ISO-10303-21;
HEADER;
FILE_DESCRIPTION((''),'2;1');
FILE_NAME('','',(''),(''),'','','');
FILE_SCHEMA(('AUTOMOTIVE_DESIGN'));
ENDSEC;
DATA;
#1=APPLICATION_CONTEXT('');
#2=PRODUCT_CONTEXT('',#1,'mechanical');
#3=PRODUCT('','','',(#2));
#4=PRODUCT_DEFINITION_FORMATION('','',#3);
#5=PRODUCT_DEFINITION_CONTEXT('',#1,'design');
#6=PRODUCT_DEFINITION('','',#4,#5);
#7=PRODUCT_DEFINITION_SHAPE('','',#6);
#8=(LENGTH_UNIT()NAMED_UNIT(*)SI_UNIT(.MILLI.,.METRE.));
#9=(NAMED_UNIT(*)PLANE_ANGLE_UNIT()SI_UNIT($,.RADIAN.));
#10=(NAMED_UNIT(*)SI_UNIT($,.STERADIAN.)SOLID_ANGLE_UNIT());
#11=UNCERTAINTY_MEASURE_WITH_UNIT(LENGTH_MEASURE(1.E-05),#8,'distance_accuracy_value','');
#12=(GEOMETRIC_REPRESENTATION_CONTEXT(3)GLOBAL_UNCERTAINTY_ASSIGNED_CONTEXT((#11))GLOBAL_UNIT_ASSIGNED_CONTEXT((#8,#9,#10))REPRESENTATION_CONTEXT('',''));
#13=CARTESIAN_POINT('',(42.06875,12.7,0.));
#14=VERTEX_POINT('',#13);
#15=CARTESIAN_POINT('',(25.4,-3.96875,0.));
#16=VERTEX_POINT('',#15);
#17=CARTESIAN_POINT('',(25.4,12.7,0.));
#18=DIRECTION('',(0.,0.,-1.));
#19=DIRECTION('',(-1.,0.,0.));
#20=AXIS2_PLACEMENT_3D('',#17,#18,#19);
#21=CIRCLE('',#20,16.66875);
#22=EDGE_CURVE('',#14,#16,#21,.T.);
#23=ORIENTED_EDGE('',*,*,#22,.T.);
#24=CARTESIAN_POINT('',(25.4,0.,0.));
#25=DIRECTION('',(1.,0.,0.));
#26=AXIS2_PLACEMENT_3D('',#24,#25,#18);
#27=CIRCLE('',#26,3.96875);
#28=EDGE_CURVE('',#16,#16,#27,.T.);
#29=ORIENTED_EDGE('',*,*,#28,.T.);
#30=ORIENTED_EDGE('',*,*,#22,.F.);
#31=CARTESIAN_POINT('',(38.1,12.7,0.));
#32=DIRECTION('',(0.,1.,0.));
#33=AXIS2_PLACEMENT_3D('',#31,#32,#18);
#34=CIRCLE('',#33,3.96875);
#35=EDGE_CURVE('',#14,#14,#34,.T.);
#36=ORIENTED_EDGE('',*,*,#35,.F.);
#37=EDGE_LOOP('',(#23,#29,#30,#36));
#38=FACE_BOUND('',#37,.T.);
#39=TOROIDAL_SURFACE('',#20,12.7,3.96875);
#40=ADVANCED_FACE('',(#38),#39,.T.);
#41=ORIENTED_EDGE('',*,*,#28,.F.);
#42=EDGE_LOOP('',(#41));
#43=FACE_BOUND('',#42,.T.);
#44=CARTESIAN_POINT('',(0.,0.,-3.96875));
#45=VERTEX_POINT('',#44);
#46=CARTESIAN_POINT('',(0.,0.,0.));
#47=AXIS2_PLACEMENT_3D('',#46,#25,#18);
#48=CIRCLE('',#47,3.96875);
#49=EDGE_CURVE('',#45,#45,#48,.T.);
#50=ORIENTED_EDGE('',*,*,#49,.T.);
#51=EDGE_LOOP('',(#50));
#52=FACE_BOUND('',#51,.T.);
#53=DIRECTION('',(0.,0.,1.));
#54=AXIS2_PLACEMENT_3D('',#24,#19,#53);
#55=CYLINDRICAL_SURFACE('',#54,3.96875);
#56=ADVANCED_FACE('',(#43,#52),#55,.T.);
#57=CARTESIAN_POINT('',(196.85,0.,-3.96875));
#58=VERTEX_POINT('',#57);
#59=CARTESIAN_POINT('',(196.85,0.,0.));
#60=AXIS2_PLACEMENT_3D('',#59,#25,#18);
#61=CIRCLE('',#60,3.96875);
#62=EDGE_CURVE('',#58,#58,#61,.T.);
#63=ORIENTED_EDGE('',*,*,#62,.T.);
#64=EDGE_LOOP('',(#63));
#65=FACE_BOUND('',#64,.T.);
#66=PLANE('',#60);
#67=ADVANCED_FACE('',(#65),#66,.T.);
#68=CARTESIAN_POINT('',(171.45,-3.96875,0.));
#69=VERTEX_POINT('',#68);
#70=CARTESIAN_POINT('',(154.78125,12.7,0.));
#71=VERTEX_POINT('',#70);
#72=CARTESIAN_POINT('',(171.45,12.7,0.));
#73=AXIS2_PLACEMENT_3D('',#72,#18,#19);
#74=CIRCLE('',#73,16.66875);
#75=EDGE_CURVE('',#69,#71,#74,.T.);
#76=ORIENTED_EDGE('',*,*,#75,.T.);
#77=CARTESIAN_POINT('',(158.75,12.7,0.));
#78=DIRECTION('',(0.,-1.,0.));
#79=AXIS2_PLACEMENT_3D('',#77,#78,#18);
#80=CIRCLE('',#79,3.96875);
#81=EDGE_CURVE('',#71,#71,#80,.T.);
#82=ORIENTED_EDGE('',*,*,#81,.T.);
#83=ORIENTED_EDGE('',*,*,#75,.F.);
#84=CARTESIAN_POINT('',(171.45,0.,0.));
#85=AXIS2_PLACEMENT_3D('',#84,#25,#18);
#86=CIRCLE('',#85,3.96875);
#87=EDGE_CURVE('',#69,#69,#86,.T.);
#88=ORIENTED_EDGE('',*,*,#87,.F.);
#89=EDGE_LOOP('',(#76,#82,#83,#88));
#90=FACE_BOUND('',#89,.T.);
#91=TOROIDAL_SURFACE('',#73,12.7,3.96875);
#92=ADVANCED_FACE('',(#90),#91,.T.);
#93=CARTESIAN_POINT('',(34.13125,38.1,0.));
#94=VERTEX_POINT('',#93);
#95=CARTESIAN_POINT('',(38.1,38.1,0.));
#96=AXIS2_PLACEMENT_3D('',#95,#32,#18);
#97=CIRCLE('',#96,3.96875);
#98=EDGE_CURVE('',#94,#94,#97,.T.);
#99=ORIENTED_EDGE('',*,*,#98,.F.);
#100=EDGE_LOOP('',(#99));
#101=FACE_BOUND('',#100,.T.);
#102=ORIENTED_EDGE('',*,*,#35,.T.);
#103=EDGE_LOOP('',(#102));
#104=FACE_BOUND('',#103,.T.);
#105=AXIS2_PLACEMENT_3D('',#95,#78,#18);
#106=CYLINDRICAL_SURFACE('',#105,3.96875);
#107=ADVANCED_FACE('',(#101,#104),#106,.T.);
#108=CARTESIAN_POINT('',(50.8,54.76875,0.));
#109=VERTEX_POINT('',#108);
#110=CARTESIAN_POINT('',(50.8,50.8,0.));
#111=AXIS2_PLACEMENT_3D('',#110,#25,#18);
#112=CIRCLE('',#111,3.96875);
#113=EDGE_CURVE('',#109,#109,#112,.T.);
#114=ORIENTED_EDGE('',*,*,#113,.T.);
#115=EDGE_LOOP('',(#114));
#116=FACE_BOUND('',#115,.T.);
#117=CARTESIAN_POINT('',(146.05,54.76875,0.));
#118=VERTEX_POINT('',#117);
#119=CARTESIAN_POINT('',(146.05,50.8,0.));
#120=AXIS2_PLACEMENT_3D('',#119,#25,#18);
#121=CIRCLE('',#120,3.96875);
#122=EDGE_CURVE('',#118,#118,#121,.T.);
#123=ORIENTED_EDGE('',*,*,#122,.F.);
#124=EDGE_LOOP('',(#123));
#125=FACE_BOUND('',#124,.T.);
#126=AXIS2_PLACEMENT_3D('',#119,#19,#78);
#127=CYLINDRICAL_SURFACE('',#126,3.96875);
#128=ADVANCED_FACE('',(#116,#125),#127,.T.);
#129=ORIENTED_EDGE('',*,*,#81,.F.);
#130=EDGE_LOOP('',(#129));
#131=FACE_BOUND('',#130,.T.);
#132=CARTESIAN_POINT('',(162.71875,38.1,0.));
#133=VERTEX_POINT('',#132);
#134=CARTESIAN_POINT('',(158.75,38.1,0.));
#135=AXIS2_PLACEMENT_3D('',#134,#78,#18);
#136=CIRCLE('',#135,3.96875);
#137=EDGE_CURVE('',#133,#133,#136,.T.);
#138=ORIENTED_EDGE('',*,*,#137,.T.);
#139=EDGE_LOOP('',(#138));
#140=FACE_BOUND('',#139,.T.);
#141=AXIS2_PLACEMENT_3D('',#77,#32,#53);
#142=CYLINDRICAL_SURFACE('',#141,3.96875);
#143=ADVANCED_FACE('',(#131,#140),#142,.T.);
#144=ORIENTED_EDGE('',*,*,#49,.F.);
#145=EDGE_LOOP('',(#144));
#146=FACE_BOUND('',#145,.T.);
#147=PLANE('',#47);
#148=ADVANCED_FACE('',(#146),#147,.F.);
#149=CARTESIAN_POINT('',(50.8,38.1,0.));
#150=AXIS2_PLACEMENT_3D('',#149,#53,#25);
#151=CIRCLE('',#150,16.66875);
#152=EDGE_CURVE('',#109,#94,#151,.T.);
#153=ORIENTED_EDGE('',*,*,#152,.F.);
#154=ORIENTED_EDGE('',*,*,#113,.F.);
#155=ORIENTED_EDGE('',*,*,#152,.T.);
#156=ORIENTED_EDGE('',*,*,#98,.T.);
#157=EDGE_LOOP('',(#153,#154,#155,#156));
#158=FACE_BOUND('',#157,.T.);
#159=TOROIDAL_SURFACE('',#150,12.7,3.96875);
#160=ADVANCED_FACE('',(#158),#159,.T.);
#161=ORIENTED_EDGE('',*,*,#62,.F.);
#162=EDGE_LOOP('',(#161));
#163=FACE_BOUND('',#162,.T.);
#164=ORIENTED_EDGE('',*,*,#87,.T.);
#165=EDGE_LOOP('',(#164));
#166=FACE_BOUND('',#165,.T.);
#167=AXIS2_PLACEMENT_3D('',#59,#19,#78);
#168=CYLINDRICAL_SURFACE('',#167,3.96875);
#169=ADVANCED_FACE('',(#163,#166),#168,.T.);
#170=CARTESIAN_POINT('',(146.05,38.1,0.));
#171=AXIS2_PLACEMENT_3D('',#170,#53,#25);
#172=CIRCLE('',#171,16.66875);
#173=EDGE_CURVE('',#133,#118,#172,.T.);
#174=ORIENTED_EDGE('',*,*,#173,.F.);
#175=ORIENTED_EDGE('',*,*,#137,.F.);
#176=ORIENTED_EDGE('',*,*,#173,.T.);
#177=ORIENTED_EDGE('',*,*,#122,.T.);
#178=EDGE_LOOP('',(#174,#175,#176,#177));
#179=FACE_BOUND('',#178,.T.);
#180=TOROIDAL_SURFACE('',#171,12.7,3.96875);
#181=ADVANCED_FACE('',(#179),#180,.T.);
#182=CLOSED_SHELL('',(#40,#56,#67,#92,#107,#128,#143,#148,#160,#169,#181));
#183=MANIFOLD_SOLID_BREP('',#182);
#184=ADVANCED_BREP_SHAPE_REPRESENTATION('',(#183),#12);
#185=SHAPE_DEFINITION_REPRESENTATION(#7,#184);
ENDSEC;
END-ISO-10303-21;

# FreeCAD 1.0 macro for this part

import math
import FreeCAD as App
import Part
import Sketcher
Q = App.Units.Quantity

doc = App.newDocument("Part")
body = doc.addObject("PartDesign::Body", "Body")

# Sketch on YZ plane
sketch1 = body.newObject("Sketcher::SketchObject", "Sketch")
sketch1.AttachmentSupport = (doc.getObject("YZ_Plane"), [""])
sketch1.MapMode = "FlatFace"
sketch1.addGeometry(Part.Circle(App.Vector(0, 0, 0), App.Vector(0, 0, 1), 4), False)
sketch1.addConstraint(Sketcher.Constraint("Coincident", 0, 3, -1, 1))
sketch1.addConstraint(Sketcher.Constraint("Diameter", 0, Q("0.3125 in")))

# Sketch on XY plane
sketch2 = body.newObject("Sketcher::SketchObject", "Sketch001")
sketch2.AttachmentSupport = (doc.getObject("XY_Plane"), [""])
sketch2.MapMode = "FlatFace"
sketch2.addGeometry(Part.LineSegment(App.Vector(0, 0, 0), App.Vector(25, 0, 0)), False)
sketch2.addGeometry(Part.ArcOfCircle(Part.Circle(App.Vector(25, 13, 0), App.Vector(0, 0, 1), 13), math.radians(-90), math.radians(0)), False)
sketch2.addGeometry(Part.LineSegment(App.Vector(38, 13, 0), App.Vector(38, 38, 0)), False)
sketch2.addGeometry(Part.ArcOfCircle(Part.Circle(App.Vector(51, 38, 0), App.Vector(0, 0, 1), 13), math.radians(90), math.radians(180)), False)
sketch2.addGeometry(Part.LineSegment(App.Vector(51, 51, 0), App.Vector(146, 51, 0)), False)
sketch2.addGeometry(Part.ArcOfCircle(Part.Circle(App.Vector(146, 38, 0), App.Vector(0, 0, 1), 13), math.radians(0), math.radians(90)), False)
sketch2.addGeometry(Part.LineSegment(App.Vector(159, 38, 0), App.Vector(159, 13, 0)), False)
sketch2.addGeometry(Part.ArcOfCircle(Part.Circle(App.Vector(171, 13, 0), App.Vector(0, 0, 1), 13), math.radians(180), math.radians(270)), False)
sketch2.addGeometry(Part.LineSegment(App.Vector(171, 0, 0), App.Vector(197, 0, 0)), False)
sketch2.addConstraint(Sketcher.Constraint("Tangent", 0, 2, 1, 1))
sketch2.addConstraint(Sketcher.Constraint("Tangent", 1, 2, 2, 1))
sketch2.addConstraint(Sketcher.Constraint("Tangent", 2, 2, 3, 2))
sketch2.addConstraint(Sketcher.Constraint("Tangent", 3, 1, 4, 1))
sketch2.addConstraint(Sketcher.Constraint("Tangent", 4, 2, 5, 2))
sketch2.addConstraint(Sketcher.Constraint("Tangent", 5, 1, 6, 1))
sketch2.addConstraint(Sketcher.Constraint("Tangent", 6, 2, 7, 1))
sketch2.addConstraint(Sketcher.Constraint("Tangent", 7, 2, 8, 1))
sketch2.addConstraint(Sketcher.Constraint("Horizontal", 0))
sketch2.addConstraint(Sketcher.Constraint("Vertical", 2))
sketch2.addConstraint(Sketcher.Constraint("Horizontal", 4))
sketch2.addConstraint(Sketcher.Constraint("Vertical", 6))
sketch2.addConstraint(Sketcher.Constraint("Horizontal", 8))
sketch2.addConstraint(Sketcher.Constraint("Coincident", 0, 1, -1, 1))
sketch2.addConstraint(Sketcher.Constraint("Equal", 1, 3))
sketch2.addConstraint(Sketcher.Constraint("Equal", 3, 5))
sketch2.addConstraint(Sketcher.Constraint("Equal", 5, 7))
sketch2.addConstraint(Sketcher.Constraint("PointOnObject", 7, 2, -1))
sketch2.addConstraint(Sketcher.Constraint("Equal", 0, 8))
sketch2.addConstraint(Sketcher.Constraint("Equal", 8, 2))
sketch2.addConstraint(Sketcher.Constraint("Radius", 1, Q("0.5 in")))
sketch2.addConstraint(Sketcher.Constraint("DistanceX", 0, 1, 0, 2, Q("1 in")))
sketch2.addConstraint(Sketcher.Constraint("DistanceX", 4, 1, 4, 2, Q("3.75 in")))
doc.recompute()

additivepipe = body.newObject("PartDesign::AdditivePipe", "AdditivePipe")
additivepipe.Profile = sketch1
additivepipe.Spine = (sketch2, ["Edge1", "Edge2", "Edge3", "Edge4", "Edge5", "Edge6", "Edge7", "Edge8", "Edge9"])

doc.recompute()
